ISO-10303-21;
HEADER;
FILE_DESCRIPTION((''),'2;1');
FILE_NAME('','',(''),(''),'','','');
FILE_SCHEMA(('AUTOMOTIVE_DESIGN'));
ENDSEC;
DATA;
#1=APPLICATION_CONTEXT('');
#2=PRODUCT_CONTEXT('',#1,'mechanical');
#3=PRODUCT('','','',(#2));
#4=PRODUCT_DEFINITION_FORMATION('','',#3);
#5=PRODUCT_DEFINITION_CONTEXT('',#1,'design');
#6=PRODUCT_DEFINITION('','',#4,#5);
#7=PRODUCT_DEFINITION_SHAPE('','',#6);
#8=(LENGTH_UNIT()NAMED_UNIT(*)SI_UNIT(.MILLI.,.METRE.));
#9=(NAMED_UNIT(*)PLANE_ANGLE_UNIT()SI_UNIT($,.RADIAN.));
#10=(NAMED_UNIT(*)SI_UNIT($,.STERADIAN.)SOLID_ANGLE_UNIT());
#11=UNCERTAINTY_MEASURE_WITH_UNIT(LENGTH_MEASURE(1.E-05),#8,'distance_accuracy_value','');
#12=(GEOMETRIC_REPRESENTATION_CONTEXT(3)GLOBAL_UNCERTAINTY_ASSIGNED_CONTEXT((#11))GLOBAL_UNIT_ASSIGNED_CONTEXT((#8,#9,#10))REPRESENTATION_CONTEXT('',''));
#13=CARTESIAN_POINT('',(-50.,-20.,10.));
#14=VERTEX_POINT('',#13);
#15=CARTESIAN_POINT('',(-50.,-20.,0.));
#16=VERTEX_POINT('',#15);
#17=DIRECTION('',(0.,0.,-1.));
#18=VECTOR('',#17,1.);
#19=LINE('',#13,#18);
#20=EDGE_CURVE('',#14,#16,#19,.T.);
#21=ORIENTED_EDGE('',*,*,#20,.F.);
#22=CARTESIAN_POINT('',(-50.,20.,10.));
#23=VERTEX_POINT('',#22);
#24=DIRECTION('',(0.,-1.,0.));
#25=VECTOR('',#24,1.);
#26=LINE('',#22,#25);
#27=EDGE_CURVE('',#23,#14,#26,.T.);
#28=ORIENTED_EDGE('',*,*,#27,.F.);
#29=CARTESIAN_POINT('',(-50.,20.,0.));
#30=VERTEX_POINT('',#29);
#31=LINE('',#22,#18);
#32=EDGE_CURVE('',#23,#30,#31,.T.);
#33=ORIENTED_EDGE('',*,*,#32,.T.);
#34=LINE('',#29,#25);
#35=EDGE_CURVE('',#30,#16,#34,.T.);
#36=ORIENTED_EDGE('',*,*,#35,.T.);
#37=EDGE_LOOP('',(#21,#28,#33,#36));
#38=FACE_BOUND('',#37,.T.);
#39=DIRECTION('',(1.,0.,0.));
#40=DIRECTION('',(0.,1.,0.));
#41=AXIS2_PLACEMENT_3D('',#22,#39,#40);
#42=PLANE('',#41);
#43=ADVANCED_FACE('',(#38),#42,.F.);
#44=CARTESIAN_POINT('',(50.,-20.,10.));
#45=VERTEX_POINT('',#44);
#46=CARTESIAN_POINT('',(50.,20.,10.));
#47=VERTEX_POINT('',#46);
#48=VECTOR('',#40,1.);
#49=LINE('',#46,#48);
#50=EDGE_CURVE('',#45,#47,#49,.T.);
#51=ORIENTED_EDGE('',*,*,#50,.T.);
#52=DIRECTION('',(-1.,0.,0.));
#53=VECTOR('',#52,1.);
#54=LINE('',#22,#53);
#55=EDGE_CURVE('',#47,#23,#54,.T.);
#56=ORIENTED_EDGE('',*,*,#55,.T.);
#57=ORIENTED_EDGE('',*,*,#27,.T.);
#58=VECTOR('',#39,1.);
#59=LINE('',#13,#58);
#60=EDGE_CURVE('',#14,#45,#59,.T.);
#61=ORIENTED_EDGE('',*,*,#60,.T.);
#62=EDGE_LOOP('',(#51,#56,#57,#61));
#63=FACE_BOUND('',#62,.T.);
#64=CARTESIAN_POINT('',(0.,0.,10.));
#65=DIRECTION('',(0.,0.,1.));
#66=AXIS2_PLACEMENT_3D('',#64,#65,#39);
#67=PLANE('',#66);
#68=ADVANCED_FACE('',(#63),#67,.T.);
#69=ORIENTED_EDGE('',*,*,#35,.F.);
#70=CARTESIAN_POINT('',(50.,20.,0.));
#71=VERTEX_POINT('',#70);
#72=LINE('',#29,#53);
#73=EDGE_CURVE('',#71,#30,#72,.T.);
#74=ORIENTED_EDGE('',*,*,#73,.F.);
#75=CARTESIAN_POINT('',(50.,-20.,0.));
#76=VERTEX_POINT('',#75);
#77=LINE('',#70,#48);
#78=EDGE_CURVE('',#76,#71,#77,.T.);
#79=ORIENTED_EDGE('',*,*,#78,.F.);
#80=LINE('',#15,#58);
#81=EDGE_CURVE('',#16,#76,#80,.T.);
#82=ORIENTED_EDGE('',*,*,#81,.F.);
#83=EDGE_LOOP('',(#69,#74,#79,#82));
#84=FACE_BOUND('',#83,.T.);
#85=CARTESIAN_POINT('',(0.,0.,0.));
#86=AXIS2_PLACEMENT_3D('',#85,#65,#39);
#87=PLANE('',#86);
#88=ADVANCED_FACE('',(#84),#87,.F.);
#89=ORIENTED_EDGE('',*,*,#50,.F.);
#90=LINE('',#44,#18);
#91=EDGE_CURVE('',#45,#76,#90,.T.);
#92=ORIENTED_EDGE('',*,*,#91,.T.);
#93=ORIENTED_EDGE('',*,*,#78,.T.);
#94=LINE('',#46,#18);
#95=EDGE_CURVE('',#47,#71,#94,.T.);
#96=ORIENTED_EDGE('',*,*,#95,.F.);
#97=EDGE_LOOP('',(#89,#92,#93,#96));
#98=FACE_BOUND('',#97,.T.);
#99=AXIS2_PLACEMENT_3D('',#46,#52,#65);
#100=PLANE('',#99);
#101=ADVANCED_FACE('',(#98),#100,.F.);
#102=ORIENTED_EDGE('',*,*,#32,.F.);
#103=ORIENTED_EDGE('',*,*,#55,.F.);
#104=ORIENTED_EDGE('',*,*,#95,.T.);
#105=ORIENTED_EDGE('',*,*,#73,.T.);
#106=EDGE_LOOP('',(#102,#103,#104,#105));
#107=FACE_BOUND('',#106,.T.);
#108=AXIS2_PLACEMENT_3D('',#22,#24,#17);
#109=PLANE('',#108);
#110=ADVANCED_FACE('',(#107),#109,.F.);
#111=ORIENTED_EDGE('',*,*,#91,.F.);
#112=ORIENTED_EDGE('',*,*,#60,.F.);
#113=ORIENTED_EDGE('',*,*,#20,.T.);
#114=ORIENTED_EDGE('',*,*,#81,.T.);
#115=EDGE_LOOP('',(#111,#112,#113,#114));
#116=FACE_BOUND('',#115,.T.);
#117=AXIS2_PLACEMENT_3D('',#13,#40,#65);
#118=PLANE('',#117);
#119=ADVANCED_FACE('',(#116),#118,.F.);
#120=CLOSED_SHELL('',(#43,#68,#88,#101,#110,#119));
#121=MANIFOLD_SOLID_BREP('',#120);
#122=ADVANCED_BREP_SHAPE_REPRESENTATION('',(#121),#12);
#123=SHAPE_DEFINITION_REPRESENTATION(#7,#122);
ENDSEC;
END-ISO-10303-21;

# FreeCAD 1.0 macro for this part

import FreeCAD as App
import Part
import Sketcher
Q = App.Units.Quantity


def add_polygon(sketch, points):
    """Adds a closed chain of lines whose ends are joined by coincident constraints."""
    first, n = sketch.GeometryCount, len(points)
    for a, b in zip(points, points[1:] + points[:1]):
        sketch.addGeometry(Part.LineSegment(App.Vector(*a, 0), App.Vector(*b, 0)), False)
    for i in range(n):
        sketch.addConstraint(Sketcher.Constraint("Coincident", first + i, 2, first + (i + 1) % n, 1))

doc = App.newDocument("Part")
body = doc.addObject("PartDesign::Body", "Body")

# Sketch on XY plane
sketch1 = doc.addObject("Sketcher::SketchObject", "Sketch")
body.addObject(sketch1)
sketch1.AttachmentSupport = (doc.XY_Plane, [""])
sketch1.MapMode = "FlatFace"
add_polygon(sketch1, [(-50, 20), (-50, -20), (50, -20), (50, 20)])  # lines 0-3
sketch1.addConstraint([
    Sketcher.Constraint("Vertical", 0),
    Sketcher.Constraint("Horizontal", 1),
    Sketcher.Constraint("Vertical", 2),
    Sketcher.Constraint("Horizontal", 3),
    Sketcher.Constraint("Symmetric", 0, 2, 2, 2, -1, 1),
    Sketcher.Constraint("DistanceX", 1, 1, 1, 2, Q("100 mm")),
    Sketcher.Constraint("DistanceY", 0, 2, 0, 1, Q("40 mm")),
])
pad1 = doc.addObject("PartDesign::Pad", "Pad")
body.addObject(pad1)
pad1.Profile = sketch1
pad1.Length = 10

doc.recompute()
